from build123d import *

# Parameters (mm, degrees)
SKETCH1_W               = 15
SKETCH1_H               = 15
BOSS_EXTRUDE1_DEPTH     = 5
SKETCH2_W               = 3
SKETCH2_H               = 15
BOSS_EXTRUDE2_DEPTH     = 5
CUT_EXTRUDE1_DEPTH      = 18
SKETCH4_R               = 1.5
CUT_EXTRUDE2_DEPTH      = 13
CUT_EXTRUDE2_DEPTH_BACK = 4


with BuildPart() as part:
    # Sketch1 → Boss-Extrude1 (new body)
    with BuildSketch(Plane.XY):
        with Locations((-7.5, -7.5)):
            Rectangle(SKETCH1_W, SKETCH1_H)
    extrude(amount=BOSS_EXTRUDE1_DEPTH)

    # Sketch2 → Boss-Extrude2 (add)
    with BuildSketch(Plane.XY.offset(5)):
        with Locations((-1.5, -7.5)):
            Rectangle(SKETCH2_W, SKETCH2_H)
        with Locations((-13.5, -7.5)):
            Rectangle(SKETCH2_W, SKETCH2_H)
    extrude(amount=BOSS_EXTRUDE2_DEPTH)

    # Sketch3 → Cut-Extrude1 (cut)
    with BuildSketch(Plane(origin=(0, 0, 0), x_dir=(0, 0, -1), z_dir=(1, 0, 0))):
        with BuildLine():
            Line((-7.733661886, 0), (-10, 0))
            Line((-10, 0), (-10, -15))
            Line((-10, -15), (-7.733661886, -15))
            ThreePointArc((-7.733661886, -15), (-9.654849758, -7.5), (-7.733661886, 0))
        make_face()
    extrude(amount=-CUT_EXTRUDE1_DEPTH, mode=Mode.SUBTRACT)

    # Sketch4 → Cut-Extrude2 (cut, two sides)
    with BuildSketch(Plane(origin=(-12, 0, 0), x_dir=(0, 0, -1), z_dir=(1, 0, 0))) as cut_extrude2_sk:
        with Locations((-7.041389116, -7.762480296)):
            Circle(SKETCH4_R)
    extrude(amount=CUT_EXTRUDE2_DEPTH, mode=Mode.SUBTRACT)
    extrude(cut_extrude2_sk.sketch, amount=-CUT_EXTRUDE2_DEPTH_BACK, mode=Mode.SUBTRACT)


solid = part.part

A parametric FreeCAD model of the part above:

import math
import FreeCAD as App
import Part
import Sketcher

V = App.Vector
Q = App.Units.Quantity


def add_polygon(sketch, points):
    """Adds a closed chain of lines whose ends are joined by coincident constraints."""
    first, n = sketch.GeometryCount, len(points)
    for a, b in zip(points, points[1:] + points[:1]):
        sketch.addGeometry(Part.LineSegment(App.Vector(*a, 0), App.Vector(*b, 0)), False)
    for i in range(n):
        sketch.addConstraint(Sketcher.Constraint("Coincident", first + i, 2, first + (i + 1) % n, 1))

doc = App.newDocument("Part")
body = doc.addObject("PartDesign::Body", "Body")

sketch1 = doc.addObject("Sketcher::SketchObject", "Sketch")
body.addObject(sketch1)
sketch1.AttachmentSupport = (doc.XY_Plane, [""])
sketch1.MapMode = "FlatFace"
add_polygon(sketch1, [(-15, 0), (-15, -15), (0, -15), (0, 0)])
sketch1.addConstraint([
    Sketcher.Constraint("Vertical", 0),
    Sketcher.Constraint("Horizontal", 1),
    Sketcher.Constraint("Vertical", 2),
    Sketcher.Constraint("Horizontal", 3),
    Sketcher.Constraint("Coincident", 2, 2, -1, 1),
    Sketcher.Constraint("Equal", 3, 0),
    Sketcher.Constraint("DistanceX", 1, 1, 1, 2, Q("15 mm")),
])
pad1 = doc.addObject("PartDesign::Pad", "Pad")
body.addObject(pad1)
pad1.Profile = sketch1
pad1.Length = 5

sketch2 = doc.addObject("Sketcher::SketchObject", "Sketch001")
body.addObject(sketch2)
sketch2.AttachmentSupport = (doc.XY_Plane, [""])
sketch2.MapMode = "FlatFace"
sketch2.AttachmentOffset = App.Placement(V(0, 0, 5), App.Rotation())
add_polygon(sketch2, [(-3, 0), (-3, -15), (0, -15), (0, 0)])
add_polygon(sketch2, [(-15, 0), (-15, -15), (-12, -15), (-12, 0)])
sketch2.addConstraint([
    Sketcher.Constraint("Vertical", 0),
    Sketcher.Constraint("Horizontal", 1),
    Sketcher.Constraint("Vertical", 2),
    Sketcher.Constraint("Horizontal", 3),
    Sketcher.Constraint("Vertical", 4),
    Sketcher.Constraint("Horizontal", 5),
    Sketcher.Constraint("Vertical", 6),
    Sketcher.Constraint("Horizontal", 7),
    Sketcher.Constraint("Coincident", 2, 2, -1, 1),
    Sketcher.Constraint("PointOnObject", 6, 2, -1),
    Sketcher.Constraint("Horizontal", 1, 2, 4, 2),
    Sketcher.Constraint("Equal", 3, 5),
    Sketcher.Constraint("DistanceX", 1, 1, 1, 2, Q("3 mm")),
    Sketcher.Constraint("DistanceY", 0, 2, 0, 1, Q("15 mm")),
    Sketcher.Constraint("DistanceX", 4, 2, -1, 1, Q("15 mm")),
])
pad2 = doc.addObject("PartDesign::Pad", "Pad001")
body.addObject(pad2)
pad2.Profile = sketch2
pad2.Length = 5

sketch3 = doc.addObject("Sketcher::SketchObject", "Sketch002")
body.addObject(sketch3)
sketch3.AttachmentSupport = (doc.YZ_Plane, [""])
sketch3.MapMode = "FlatFace"
sketch3.addGeometry([
    Part.LineSegment(V(0, 7.7, 0), V(0, 10, 0)),
    Part.LineSegment(V(0, 10, 0), V(-15, 10, 0)),
    Part.LineSegment(V(-15, 10, 0), V(-15, 7.7, 0)),
    Part.ArcOfCircle(Part.Circle(V(-7.5, -5.9, 0), V(0, 0, 1), 15.6), math.radians(61), math.radians(119)),
], False)
sketch3.addConstraint([
    Sketcher.Constraint("Coincident", 0, 2, 1, 1),
    Sketcher.Constraint("Coincident", 1, 2, 2, 1),
    Sketcher.Constraint("Coincident", 2, 2, 3, 2),
    Sketcher.Constraint("Coincident", 3, 1, 0, 1),
    Sketcher.Constraint("Vertical", 0),
    Sketcher.Constraint("Horizontal", 1),
    Sketcher.Constraint("Vertical", 2),
    Sketcher.Constraint("PointOnObject", 0, 2, -2),
    Sketcher.Constraint("Horizontal", 2, 2, 3, 1),
    Sketcher.Constraint("DistanceX", 1, 2, 1, 1, Q("15 mm")),
    Sketcher.Constraint("DistanceY", -1, 1, 0, 2, Q("10 mm")),
    Sketcher.Constraint("Radius", 3, Q("15.599974 mm")),
    Sketcher.Constraint("DistanceY", 0, 1, 0, 2, Q("2.266338 mm")),
])
pocket1 = doc.addObject("PartDesign::Pocket", "Pocket")
body.addObject(pocket1)
pocket1.Profile = sketch3
pocket1.Length = 18

sketch4 = doc.addObject("Sketcher::SketchObject", "Sketch003")
body.addObject(sketch4)
sketch4.AttachmentSupport = (doc.YZ_Plane, [""])
sketch4.MapMode = "FlatFace"
sketch4.AttachmentOffset = App.Placement(V(0, 0, -12), App.Rotation())
sketch4.addGeometry(Part.Circle(V(-7.8, 7, 0), V(0, 0, 1), 1.5), False)
sketch4.addConstraint([
    Sketcher.Constraint("Diameter", 0, Q("3 mm")),
    Sketcher.Constraint("DistanceX", 0, 3, -1, 1, Q("7.76248 mm")),
    Sketcher.Constraint("DistanceY", -1, 1, 0, 3, Q("7.041389 mm")),
])
pocket2 = doc.addObject("PartDesign::Pocket", "Pocket001")
body.addObject(pocket2)
pocket2.Profile = sketch4
pocket2.Type = "ThroughAll"
pocket2.Midplane = True

doc.recompute()
